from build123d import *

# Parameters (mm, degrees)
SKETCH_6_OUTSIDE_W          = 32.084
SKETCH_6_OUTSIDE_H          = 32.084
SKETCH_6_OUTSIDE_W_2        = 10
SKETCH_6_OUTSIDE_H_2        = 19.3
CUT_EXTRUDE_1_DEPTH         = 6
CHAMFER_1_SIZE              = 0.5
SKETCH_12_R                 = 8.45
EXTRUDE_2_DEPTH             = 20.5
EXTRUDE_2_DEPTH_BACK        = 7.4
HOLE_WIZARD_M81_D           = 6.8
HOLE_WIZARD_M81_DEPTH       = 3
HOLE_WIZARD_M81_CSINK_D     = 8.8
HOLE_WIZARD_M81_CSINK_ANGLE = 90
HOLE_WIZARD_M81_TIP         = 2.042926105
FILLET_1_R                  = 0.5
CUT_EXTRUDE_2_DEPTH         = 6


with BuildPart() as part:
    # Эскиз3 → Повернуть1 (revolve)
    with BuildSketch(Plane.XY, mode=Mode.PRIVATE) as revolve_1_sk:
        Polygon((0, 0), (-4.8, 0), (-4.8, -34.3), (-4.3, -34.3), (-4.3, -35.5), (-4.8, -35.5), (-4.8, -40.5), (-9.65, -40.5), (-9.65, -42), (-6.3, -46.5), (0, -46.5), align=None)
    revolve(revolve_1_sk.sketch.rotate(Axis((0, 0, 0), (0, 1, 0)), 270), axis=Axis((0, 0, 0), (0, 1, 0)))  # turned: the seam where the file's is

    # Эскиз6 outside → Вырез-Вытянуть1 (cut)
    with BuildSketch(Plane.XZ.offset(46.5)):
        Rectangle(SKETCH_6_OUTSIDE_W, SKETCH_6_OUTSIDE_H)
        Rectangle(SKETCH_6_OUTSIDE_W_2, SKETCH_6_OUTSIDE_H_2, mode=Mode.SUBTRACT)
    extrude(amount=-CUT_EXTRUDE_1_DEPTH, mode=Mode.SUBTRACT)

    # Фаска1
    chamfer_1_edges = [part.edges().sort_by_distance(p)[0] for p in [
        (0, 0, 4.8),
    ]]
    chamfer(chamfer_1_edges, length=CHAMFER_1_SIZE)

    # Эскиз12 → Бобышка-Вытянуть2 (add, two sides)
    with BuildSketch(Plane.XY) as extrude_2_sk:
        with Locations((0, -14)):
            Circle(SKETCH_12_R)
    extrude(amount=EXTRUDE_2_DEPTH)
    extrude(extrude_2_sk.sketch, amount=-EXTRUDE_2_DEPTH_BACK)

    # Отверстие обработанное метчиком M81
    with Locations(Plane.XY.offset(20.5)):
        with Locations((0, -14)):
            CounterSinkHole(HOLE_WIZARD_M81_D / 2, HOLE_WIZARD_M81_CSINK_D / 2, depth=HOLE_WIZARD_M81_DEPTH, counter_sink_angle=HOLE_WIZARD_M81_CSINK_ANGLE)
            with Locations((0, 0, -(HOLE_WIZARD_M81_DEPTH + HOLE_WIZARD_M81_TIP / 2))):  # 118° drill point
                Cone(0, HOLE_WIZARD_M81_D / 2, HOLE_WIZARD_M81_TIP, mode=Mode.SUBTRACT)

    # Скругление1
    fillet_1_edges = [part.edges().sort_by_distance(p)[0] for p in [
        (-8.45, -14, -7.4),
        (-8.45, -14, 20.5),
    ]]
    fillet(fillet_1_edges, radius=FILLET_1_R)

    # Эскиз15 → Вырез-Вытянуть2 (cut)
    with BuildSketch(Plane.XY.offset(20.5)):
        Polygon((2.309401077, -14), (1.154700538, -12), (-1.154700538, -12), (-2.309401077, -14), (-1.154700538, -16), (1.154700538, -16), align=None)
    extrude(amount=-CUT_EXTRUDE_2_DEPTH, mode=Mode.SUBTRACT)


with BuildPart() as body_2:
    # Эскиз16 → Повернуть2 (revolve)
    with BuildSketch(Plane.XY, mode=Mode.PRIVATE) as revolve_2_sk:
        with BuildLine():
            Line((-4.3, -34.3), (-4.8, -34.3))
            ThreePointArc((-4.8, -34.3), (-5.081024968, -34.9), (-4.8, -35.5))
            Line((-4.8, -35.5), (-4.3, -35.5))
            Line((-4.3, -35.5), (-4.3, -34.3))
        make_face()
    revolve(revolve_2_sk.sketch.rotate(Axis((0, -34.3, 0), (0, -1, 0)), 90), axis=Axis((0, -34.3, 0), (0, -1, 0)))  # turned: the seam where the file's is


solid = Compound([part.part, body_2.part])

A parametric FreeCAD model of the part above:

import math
import FreeCAD as App
import Part
import Sketcher

V = App.Vector
Q = App.Units.Quantity


def edges_at(feature, points):
    """Names of the edges that pass closest to the given points."""
    edges = feature.Shape.Edges
    near = lambda p: min(range(len(edges)), key=lambda i: edges[i].distToShape(Part.Vertex(*p))[0])
    return sorted({f"Edge{near(p) + 1}" for p in points})

doc = App.newDocument("Part")
params = doc.addObject("Spreadsheet::Sheet", "Params")
for row, (alias, value) in enumerate([
    ("sketch1_height", "5 mm"),
    ("sketch1_width", "4.8 mm"),
    ("sketch1_width2", "0.5 mm"),
    ("sketch1_width3", "6.3 mm"),
    ("sketch1_height2", "34.3 mm"),
    ("revolution_angle", "360 deg"),
    ("sketch2_width", "10 mm"),
    ("sketch2_height", "19.3 mm"),
    ("pocket1_length", "6 mm"),
    ("chamfer_size", "0.5 mm"),
    ("sketch3_diameter", "16.9 mm"),
    ("pad1_length", "20.5 mm"),
    ("pad1_length2", "7.4 mm"),
    ("sketch4_diameter", "6.8 mm"),
    ("hole_diameter", "6.8 mm"),
    ("hole_depth", "3 mm"),
    ("hole_csink_diameter", "8.8 mm"),
    ("fillet_radius", "0.5 mm"),
    ("pocket2_length", "6 mm"),
    ("sketch6_width", "0.5 mm"),
    ("sketch6_height", "1.2 mm"),
    ("revolution2_angle", "360 deg"),
], start=1):
    params.set(f"A{row}", alias)
    params.set(f"B{row}", "=" + value)
    params.setAlias(f"B{row}", alias)

body = doc.addObject("PartDesign::Body", "Body")

# Sketch on XY plane
sketch1 = body.newObject("Sketcher::SketchObject", "Sketch")
sketch1.AttachmentSupport = (doc.getObject("XY_Plane"), [""])
sketch1.MapMode = "FlatFace"
sketch1.addGeometry(Part.LineSegment(V(0, 0, 0), V(-4.8, 0, 0)), False)
sketch1.addGeometry(Part.LineSegment(V(-4.8, 0, 0), V(-4.8, -34.3, 0)), False)
sketch1.addGeometry(Part.LineSegment(V(-4.8, -34.3, 0), V(-4.3, -34.3, 0)), False)
sketch1.addGeometry(Part.LineSegment(V(-4.3, -34.3, 0), V(-4.3, -35.5, 0)), False)
sketch1.addGeometry(Part.LineSegment(V(-4.3, -35.5, 0), V(-4.8, -35.5, 0)), False)
sketch1.addGeometry(Part.LineSegment(V(-4.8, -35.5, 0), V(-4.8, -40.5, 0)), False)
sketch1.addGeometry(Part.LineSegment(V(-4.8, -40.5, 0), V(-9.7, -40.5, 0)), False)
sketch1.addGeometry(Part.LineSegment(V(-9.7, -40.5, 0), V(-9.7, -42, 0)), False)
sketch1.addGeometry(Part.LineSegment(V(-9.7, -42, 0), V(-6.3, -46.5, 0)), False)
sketch1.addGeometry(Part.LineSegment(V(-6.3, -46.5, 0), V(0, -46.5, 0)), False)
sketch1.addGeometry(Part.LineSegment(V(0, -46.5, 0), V(0, 0, 0)), False)
sketch1.addConstraint(Sketcher.Constraint("Coincident", 0, 2, 1, 1))
sketch1.addConstraint(Sketcher.Constraint("Coincident", 1, 2, 2, 1))
sketch1.addConstraint(Sketcher.Constraint("Coincident", 2, 2, 3, 1))
sketch1.addConstraint(Sketcher.Constraint("Coincident", 3, 2, 4, 1))
sketch1.addConstraint(Sketcher.Constraint("Coincident", 4, 2, 5, 1))
sketch1.addConstraint(Sketcher.Constraint("Coincident", 5, 2, 6, 1))
sketch1.addConstraint(Sketcher.Constraint("Coincident", 6, 2, 7, 1))
sketch1.addConstraint(Sketcher.Constraint("Coincident", 7, 2, 8, 1))
sketch1.addConstraint(Sketcher.Constraint("Coincident", 8, 2, 9, 1))
sketch1.addConstraint(Sketcher.Constraint("Coincident", 9, 2, 10, 1))
sketch1.addConstraint(Sketcher.Constraint("Coincident", 10, 2, 0, 1))
sketch1.addConstraint(Sketcher.Constraint("Horizontal", 0))
sketch1.addConstraint(Sketcher.Constraint("Vertical", 1))
sketch1.addConstraint(Sketcher.Constraint("Horizontal", 2))
sketch1.addConstraint(Sketcher.Constraint("Vertical", 3))
sketch1.addConstraint(Sketcher.Constraint("Horizontal", 4))
sketch1.addConstraint(Sketcher.Constraint("Vertical", 5))
sketch1.addConstraint(Sketcher.Constraint("Horizontal", 6))
sketch1.addConstraint(Sketcher.Constraint("Vertical", 7))
sketch1.addConstraint(Sketcher.Constraint("Horizontal", 9))
sketch1.addConstraint(Sketcher.Constraint("Vertical", 10))
sketch1.addConstraint(Sketcher.Constraint("Coincident", 10, 2, -1, 1))
sketch1.addConstraint(Sketcher.Constraint("Vertical", 1, 2, 4, 2))
sketch1.addConstraint(Sketcher.Constraint("DistanceY", 5, 2, 5, 1, 5.0))
sketch1.addConstraint(Sketcher.Constraint("DistanceX", 0, 2, 0, 1, 4.8))
sketch1.addConstraint(Sketcher.Constraint("DistanceX", 2, 1, 2, 2, 0.5))
sketch1.addConstraint(Sketcher.Constraint("DistanceX", 9, 1, 9, 2, 6.3))
sketch1.addConstraint(Sketcher.Constraint("DistanceY", 1, 2, 1, 1, 34.3))
sketch1.addConstraint(Sketcher.Constraint("DistanceY", 3, 2, 3, 1, 1.2))
sketch1.addConstraint(Sketcher.Constraint("DistanceY", 7, 2, 7, 1, 1.5))
sketch1.addConstraint(Sketcher.Constraint("DistanceY", 10, 1, 10, 2, 46.5))
sketch1.addConstraint(Sketcher.Constraint("DistanceX", 6, 2, 6, 1, 4.85))
sketch1.setExpression("Constraints[23]", "Params.sketch1_height")
sketch1.setExpression("Constraints[24]", "Params.sketch1_width")
sketch1.setExpression("Constraints[25]", "Params.sketch1_width2")
sketch1.setExpression("Constraints[26]", "Params.sketch1_width3")
sketch1.setExpression("Constraints[27]", "Params.sketch1_height2")
revolution = body.newObject("PartDesign::Revolution", "Revolution")
revolution.Profile = sketch1
revolution.ReferenceAxis = (sketch1, ["V_Axis"])
revolution.setExpression("Angle", "Params.revolution_angle")

# Sketch on XZ plane
sketch2 = body.newObject("Sketcher::SketchObject", "Sketch001")
sketch2.AttachmentSupport = (doc.getObject("XZ_Plane"), [""])
sketch2.MapMode = "FlatFace"
sketch2.AttachmentOffset = App.Placement(V(0, 0, 46.5), App.Rotation())
sketch2.addGeometry(Part.LineSegment(V(-16, 16, 0), V(-16, -16, 0)), False)
sketch2.addGeometry(Part.LineSegment(V(-16, -16, 0), V(16, -16, 0)), False)
sketch2.addGeometry(Part.LineSegment(V(16, -16, 0), V(16, 16, 0)), False)
sketch2.addGeometry(Part.LineSegment(V(16, 16, 0), V(-16, 16, 0)), False)
sketch2.addGeometry(Part.LineSegment(V(5, -10, 0), V(-5, -10, 0)), False)
sketch2.addGeometry(Part.LineSegment(V(-5, -10, 0), V(-5, 10, 0)), False)
sketch2.addGeometry(Part.LineSegment(V(-5, 10, 0), V(5, 10, 0)), False)
sketch2.addGeometry(Part.LineSegment(V(5, 10, 0), V(5, -10, 0)), False)
sketch2.addConstraint(Sketcher.Constraint("Coincident", 0, 2, 1, 1))
sketch2.addConstraint(Sketcher.Constraint("Coincident", 1, 2, 2, 1))
sketch2.addConstraint(Sketcher.Constraint("Coincident", 2, 2, 3, 1))
sketch2.addConstraint(Sketcher.Constraint("Coincident", 3, 2, 0, 1))
sketch2.addConstraint(Sketcher.Constraint("Coincident", 4, 2, 5, 1))
sketch2.addConstraint(Sketcher.Constraint("Coincident", 5, 2, 6, 1))
sketch2.addConstraint(Sketcher.Constraint("Coincident", 6, 2, 7, 1))
sketch2.addConstraint(Sketcher.Constraint("Coincident", 7, 2, 4, 1))
sketch2.addConstraint(Sketcher.Constraint("Vertical", 0))
sketch2.addConstraint(Sketcher.Constraint("Horizontal", 1))
sketch2.addConstraint(Sketcher.Constraint("Vertical", 2))
sketch2.addConstraint(Sketcher.Constraint("Horizontal", 3))
sketch2.addConstraint(Sketcher.Constraint("Horizontal", 4))
sketch2.addConstraint(Sketcher.Constraint("Vertical", 5))
sketch2.addConstraint(Sketcher.Constraint("Horizontal", 6))
sketch2.addConstraint(Sketcher.Constraint("Vertical", 7))
sketch2.addConstraint(Sketcher.Constraint("Symmetric", 0, 2, 2, 2, -1, 1))
sketch2.addConstraint(Sketcher.Constraint("Symmetric", 4, 2, 6, 2, -1, 1))
sketch2.addConstraint(Sketcher.Constraint("Equal", 3, 0))
sketch2.addConstraint(Sketcher.Constraint("DistanceX", 4, 2, 4, 1, 10.0))
sketch2.addConstraint(Sketcher.Constraint("DistanceY", 5, 1, 5, 2, 19.3))
sketch2.addConstraint(Sketcher.Constraint("DistanceX", 1, 1, 1, 2, 32.084))
sketch2.setExpression("Constraints[19]", "Params.sketch2_width")
sketch2.setExpression("Constraints[20]", "Params.sketch2_height")
pocket1 = body.newObject("PartDesign::Pocket", "Pocket")
pocket1.Profile = sketch2
pocket1.setExpression("Length", "Params.pocket1_length")
doc.recompute()

chamfer = body.newObject("PartDesign::Chamfer", "Chamfer")
chamfer.Base = (pocket1, edges_at(pocket1, [(0, 0, 4.8)]))
chamfer.setExpression("Size", "Params.chamfer_size")

# Sketch on XY plane
sketch3 = body.newObject("Sketcher::SketchObject", "Sketch002")
sketch3.AttachmentSupport = (doc.getObject("XY_Plane"), [""])
sketch3.MapMode = "FlatFace"
sketch3.addGeometry(Part.Circle(V(0, -14, 0), V(0, 0, 1), 8), False)
sketch3.addConstraint(Sketcher.Constraint("PointOnObject", 0, 3, -2))
sketch3.addConstraint(Sketcher.Constraint("Diameter", 0, 16.9))
sketch3.addConstraint(Sketcher.Constraint("DistanceY", 0, 3, -1, 1, 14.0))
sketch3.setExpression("Constraints[1]", "Params.sketch3_diameter")
pad1 = body.newObject("PartDesign::Pad", "Pad")
pad1.Profile = sketch3
pad1.Type = "TwoLengths"
pad1.setExpression("Length", "Params.pad1_length")
pad1.setExpression("Length2", "Params.pad1_length2")

# Sketch on XY plane
sketch4 = body.newObject("Sketcher::SketchObject", "Sketch003")
sketch4.AttachmentSupport = (doc.getObject("XY_Plane"), [""])
sketch4.MapMode = "FlatFace"
sketch4.AttachmentOffset = App.Placement(V(0, 0, 20.5), App.Rotation())
sketch4.addGeometry(Part.Circle(V(0, -14, 0), V(0, 0, 1), 3.4), False)
sketch4.addConstraint(Sketcher.Constraint("PointOnObject", 0, 3, -2))
sketch4.addConstraint(Sketcher.Constraint("Diameter", 0, 6.8))
sketch4.addConstraint(Sketcher.Constraint("DistanceY", 0, 3, -1, 1, 14.0))
sketch4.setExpression("Constraints[1]", "Params.sketch4_diameter")
doc.recompute()
hole = body.newObject("PartDesign::Hole", "Hole")
hole.Profile = sketch4
hole.ThreadType = "None"
hole.setExpression("Diameter", "Params.hole_diameter")
hole.DepthType = "Dimension"
hole.setExpression("Depth", "Params.hole_depth")
hole.DrillPoint = "Angled"
hole.DrillPointAngle = 118
hole.HoleCutType = "Countersink"
hole.setExpression("HoleCutDiameter", "Params.hole_csink_diameter")
hole.HoleCutCountersinkAngle = 90
doc.recompute()

fillet = body.newObject("PartDesign::Fillet", "Fillet")
fillet.Base = (hole, edges_at(hole, [(-8.45, -14, -7.4), (-8.45, -14, 20.5)]))
fillet.setExpression("Radius", "Params.fillet_radius")

# Sketch on XY plane
sketch5 = body.newObject("Sketcher::SketchObject", "Sketch004")
sketch5.AttachmentSupport = (doc.getObject("XY_Plane"), [""])
sketch5.MapMode = "FlatFace"
sketch5.AttachmentOffset = App.Placement(V(0, 0, 20.5), App.Rotation())
sketch5.addGeometry(Part.LineSegment(V(2.3, -14, 0), V(1.2, -12, 0)), False)
sketch5.addGeometry(Part.LineSegment(V(1.2, -12, 0), V(-1.2, -12, 0)), False)
sketch5.addGeometry(Part.LineSegment(V(-1.2, -12, 0), V(-2.3, -14, 0)), False)
sketch5.addGeometry(Part.LineSegment(V(-2.3, -14, 0), V(-1.2, -16, 0)), False)
sketch5.addGeometry(Part.LineSegment(V(-1.2, -16, 0), V(1.2, -16, 0)), False)
sketch5.addGeometry(Part.LineSegment(V(1.2, -16, 0), V(2.3, -14, 0)), False)
sketch5.addConstraint(Sketcher.Constraint("Coincident", 0, 2, 1, 1))
sketch5.addConstraint(Sketcher.Constraint("Coincident", 1, 2, 2, 1))
sketch5.addConstraint(Sketcher.Constraint("Coincident", 2, 2, 3, 1))
sketch5.addConstraint(Sketcher.Constraint("Coincident", 3, 2, 4, 1))
sketch5.addConstraint(Sketcher.Constraint("Coincident", 4, 2, 5, 1))
sketch5.addConstraint(Sketcher.Constraint("Coincident", 5, 2, 0, 1))
sketch5.addConstraint(Sketcher.Constraint("Horizontal", 1))
sketch5.addConstraint(Sketcher.Constraint("Horizontal", 4))
sketch5.addConstraint(Sketcher.Constraint("Symmetric", 2, 2, 5, 2, -2))
sketch5.addConstraint(Sketcher.Constraint("Parallel", 0, 3))
sketch5.addConstraint(Sketcher.Constraint("Parallel", 2, 5))
sketch5.addConstraint(Sketcher.Constraint("Vertical", 1, 2, 3, 2))
sketch5.addConstraint(Sketcher.Constraint("Vertical", 0, 2, 4, 2))
sketch5.addConstraint(Sketcher.Constraint("Angle", 0, Q("120 deg")))
sketch5.addConstraint(Sketcher.Constraint("DistanceY", 0, 2, -1, 1, 12.0))
sketch5.addConstraint(Sketcher.Constraint("DistanceY", 2, 2, -1, 1, 14.0))
sketch5.addConstraint(Sketcher.Constraint("DistanceX", 1, 2, 1, 1, 2.309401))
pocket2 = body.newObject("PartDesign::Pocket", "Pocket001")
pocket2.Profile = sketch5
pocket2.setExpression("Length", "Params.pocket2_length")
body2 = doc.addObject("PartDesign::Body", "Body001")

# Sketch on XY plane
sketch6 = body2.newObject("Sketcher::SketchObject", "Sketch005")
sketch6.AttachmentSupport = (doc.getObject("XY_Plane001"), [""])
sketch6.MapMode = "FlatFace"
sketch6.addGeometry(Part.LineSegment(V(-4.3, -34.3, 0), V(-4.8, -34.3, 0)), False)
sketch6.addGeometry(Part.ArcOfCircle(Part.Circle(V(-4.3, -34.9, 0), V(0, 0, 1), 0.8), math.radians(130), math.radians(230)), False)
sketch6.addGeometry(Part.LineSegment(V(-4.8, -35.5, 0), V(-4.3, -35.5, 0)), False)
sketch6.addGeometry(Part.LineSegment(V(-4.3, -35.5, 0), V(-4.3, -34.3, 0)), False)
sketch6.addConstraint(Sketcher.Constraint("Coincident", 0, 2, 1, 1))
sketch6.addConstraint(Sketcher.Constraint("Coincident", 1, 2, 2, 1))
sketch6.addConstraint(Sketcher.Constraint("Coincident", 2, 2, 3, 1))
sketch6.addConstraint(Sketcher.Constraint("Coincident", 3, 2, 0, 1))
sketch6.addConstraint(Sketcher.Constraint("Horizontal", 0))
sketch6.addConstraint(Sketcher.Constraint("Horizontal", 2))
sketch6.addConstraint(Sketcher.Constraint("Vertical", 3))
sketch6.addConstraint(Sketcher.Constraint("Vertical", 0, 2, 1, 2))
sketch6.addConstraint(Sketcher.Constraint("Vertical", 1, 3, 2, 2))
sketch6.addConstraint(Sketcher.Constraint("DistanceX", 0, 2, 0, 1, 0.5))
sketch6.addConstraint(Sketcher.Constraint("DistanceY", 3, 1, 3, 2, 1.2))
sketch6.addConstraint(Sketcher.Constraint("DistanceX", 1, 3, -1, 1, 4.3))
sketch6.addConstraint(Sketcher.Constraint("DistanceY", 1, 3, -1, 1, 34.9))
sketch6.setExpression("Constraints[9]", "Params.sketch6_width")
sketch6.setExpression("Constraints[10]", "Params.sketch6_height")
revolution2 = body2.newObject("PartDesign::Revolution", "Revolution001")
revolution2.Profile = sketch6
revolution2.ReferenceAxis = (sketch6, ["V_Axis"])
revolution2.setExpression("Angle", "Params.revolution2_angle")

doc.recompute()
